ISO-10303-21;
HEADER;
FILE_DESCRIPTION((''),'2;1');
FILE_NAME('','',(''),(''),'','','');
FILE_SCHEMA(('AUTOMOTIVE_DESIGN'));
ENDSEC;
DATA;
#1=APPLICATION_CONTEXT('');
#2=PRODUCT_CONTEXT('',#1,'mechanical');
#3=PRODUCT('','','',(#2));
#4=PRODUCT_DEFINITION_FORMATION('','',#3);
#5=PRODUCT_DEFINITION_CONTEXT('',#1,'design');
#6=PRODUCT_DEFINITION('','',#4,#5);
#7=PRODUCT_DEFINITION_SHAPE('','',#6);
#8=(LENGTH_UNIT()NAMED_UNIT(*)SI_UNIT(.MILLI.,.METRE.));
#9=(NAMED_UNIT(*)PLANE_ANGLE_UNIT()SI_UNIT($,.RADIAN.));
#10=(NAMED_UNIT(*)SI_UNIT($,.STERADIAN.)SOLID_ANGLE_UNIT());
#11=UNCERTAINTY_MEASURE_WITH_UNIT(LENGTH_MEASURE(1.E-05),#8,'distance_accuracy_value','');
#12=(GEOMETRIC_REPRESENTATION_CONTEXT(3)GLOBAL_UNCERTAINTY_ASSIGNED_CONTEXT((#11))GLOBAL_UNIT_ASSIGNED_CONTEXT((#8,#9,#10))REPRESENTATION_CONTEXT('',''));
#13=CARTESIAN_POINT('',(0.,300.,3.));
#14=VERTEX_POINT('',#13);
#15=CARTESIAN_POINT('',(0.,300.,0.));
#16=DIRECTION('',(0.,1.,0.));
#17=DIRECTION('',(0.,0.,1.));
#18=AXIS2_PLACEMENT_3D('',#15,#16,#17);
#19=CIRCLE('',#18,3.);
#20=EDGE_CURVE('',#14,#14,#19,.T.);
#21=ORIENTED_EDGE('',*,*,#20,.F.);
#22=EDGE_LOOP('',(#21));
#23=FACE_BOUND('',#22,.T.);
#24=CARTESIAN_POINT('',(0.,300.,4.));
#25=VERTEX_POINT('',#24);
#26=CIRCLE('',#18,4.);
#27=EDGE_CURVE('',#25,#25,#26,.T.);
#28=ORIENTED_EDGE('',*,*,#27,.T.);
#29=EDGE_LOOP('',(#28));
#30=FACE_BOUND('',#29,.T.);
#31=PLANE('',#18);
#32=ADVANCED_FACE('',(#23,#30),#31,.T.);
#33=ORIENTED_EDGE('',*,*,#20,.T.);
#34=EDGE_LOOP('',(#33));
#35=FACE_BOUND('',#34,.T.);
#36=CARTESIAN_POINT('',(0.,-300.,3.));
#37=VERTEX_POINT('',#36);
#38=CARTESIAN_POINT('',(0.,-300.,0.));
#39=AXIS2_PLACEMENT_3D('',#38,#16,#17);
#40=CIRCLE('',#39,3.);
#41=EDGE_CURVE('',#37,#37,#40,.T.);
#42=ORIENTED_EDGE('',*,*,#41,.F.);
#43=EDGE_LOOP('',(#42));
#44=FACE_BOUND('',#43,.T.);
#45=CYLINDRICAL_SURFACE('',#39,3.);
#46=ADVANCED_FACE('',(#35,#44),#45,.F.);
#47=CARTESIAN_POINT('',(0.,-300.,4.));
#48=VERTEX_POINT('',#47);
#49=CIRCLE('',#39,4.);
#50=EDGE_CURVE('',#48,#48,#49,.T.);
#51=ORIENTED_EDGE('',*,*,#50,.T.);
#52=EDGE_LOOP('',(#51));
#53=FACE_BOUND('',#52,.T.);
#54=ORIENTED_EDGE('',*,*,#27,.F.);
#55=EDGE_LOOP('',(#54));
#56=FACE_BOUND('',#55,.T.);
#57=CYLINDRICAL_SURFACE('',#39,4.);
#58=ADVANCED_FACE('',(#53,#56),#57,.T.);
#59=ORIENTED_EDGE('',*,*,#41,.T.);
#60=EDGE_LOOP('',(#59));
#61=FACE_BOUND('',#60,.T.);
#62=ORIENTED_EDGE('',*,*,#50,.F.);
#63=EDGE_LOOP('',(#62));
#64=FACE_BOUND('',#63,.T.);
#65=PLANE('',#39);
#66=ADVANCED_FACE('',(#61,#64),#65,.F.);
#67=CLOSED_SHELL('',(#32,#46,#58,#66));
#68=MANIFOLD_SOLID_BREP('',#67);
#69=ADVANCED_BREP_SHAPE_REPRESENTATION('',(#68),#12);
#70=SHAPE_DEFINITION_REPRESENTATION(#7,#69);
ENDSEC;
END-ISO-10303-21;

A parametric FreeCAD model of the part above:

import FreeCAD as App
import Part
import Sketcher

V = App.Vector
Q = App.Units.Quantity

doc = App.newDocument("Part")
params = doc.addObject("Spreadsheet::Sheet", "Params")
for row, (alias, value) in enumerate([
    ("sketch1_diameter", "8 mm"),
    ("sketch1_diameter2", "6 mm"),
    ("pad1_length", "600 mm"),
], start=1):
    params.set(f"A{row}", alias)
    params.set(f"B{row}", "=" + value)
    params.setAlias(f"B{row}", alias)

body = doc.addObject("PartDesign::Body", "Body")

sketch1 = body.newObject("Sketcher::SketchObject", "Sketch")
sketch1.AttachmentSupport = (doc.getObject("XZ_Plane"), [""])
sketch1.MapMode = "FlatFace"
sketch1.addGeometry([
    Part.Circle(V(0, 0, 0), V(0, 0, 1), 4),
    Part.Circle(V(0, 0, 0), V(0, 0, 1), 3),
], False)
sketch1.addConstraint([
    Sketcher.Constraint("Coincident", 0, 3, -1, 1),
    Sketcher.Constraint("Coincident", 1, 3, -1, 1),
    Sketcher.Constraint("Diameter", 0, Q("8 mm")),
    Sketcher.Constraint("Diameter", 1, Q("6 mm")),
])
sketch1.setExpression("Constraints[2]", "Params.sketch1_diameter")
sketch1.setExpression("Constraints[3]", "Params.sketch1_diameter2")
pad1 = body.newObject("PartDesign::Pad", "Pad")
pad1.Profile = sketch1
pad1.setExpression("Length", "Params.pad1_length")
pad1.Midplane = True

doc.recompute()
